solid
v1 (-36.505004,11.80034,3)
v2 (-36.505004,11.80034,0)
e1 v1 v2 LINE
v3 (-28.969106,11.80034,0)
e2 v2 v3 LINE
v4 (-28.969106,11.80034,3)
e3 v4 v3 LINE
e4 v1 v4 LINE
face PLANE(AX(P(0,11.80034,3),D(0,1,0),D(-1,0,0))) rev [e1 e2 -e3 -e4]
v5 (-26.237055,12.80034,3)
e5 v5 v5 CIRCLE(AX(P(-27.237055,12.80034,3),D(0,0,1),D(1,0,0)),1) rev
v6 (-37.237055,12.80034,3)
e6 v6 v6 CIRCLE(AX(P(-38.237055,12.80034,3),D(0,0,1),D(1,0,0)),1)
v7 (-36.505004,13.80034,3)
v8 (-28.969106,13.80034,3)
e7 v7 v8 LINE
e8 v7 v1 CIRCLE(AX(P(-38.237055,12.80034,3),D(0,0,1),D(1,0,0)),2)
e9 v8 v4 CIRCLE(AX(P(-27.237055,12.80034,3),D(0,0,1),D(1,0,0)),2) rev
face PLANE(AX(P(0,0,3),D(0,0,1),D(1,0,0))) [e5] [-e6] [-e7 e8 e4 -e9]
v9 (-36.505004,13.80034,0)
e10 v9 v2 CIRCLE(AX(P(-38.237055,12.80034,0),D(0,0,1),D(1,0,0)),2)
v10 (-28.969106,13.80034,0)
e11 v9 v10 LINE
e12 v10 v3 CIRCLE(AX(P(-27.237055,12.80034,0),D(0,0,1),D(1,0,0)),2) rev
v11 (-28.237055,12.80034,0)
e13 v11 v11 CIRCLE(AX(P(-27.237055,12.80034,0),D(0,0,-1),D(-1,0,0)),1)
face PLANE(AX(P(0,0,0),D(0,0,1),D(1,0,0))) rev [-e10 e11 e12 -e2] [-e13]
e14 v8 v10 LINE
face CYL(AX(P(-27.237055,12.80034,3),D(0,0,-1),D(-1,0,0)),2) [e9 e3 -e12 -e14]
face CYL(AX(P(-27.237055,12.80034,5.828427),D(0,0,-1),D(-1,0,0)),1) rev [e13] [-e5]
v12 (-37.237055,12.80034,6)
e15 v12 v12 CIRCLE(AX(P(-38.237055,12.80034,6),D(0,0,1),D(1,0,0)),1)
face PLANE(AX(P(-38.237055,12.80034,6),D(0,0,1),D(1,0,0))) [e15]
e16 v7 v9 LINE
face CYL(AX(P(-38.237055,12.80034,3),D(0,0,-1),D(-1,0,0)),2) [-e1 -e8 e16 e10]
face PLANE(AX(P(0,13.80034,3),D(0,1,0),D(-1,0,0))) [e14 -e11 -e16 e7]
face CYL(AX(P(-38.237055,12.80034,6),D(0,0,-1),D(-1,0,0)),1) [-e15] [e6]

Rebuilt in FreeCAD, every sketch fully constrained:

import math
import FreeCAD as App
import Part
import Sketcher
from FreeCAD import Vector

doc = App.newDocument("Part")
body = doc.addObject("PartDesign::Body", "Body")

sketch1 = body.newObject("Sketcher::SketchObject", "Sketch")
sketch1.AttachmentSupport = (doc.getObject("XY_Plane"), [""])
sketch1.MapMode = "FlatFace"
sketch1.addGeometry([
    Part.LineSegment(Vector(-29, 13.8, 0), Vector(-36.5, 13.8, 0)),
    Part.ArcOfCircle(Part.Circle(Vector(-38.2, 12.8, 0), Vector(0, 0, 1), 2), math.radians(30), math.radians(330)),
    Part.LineSegment(Vector(-36.5, 11.8, 0), Vector(-29, 11.8, 0)),
    Part.ArcOfCircle(Part.Circle(Vector(-27.2, 12.8, 0), Vector(0, 0, 1), 2), math.radians(-150), math.radians(150)),
], False)
sketch1.addConstraint([
    Sketcher.Constraint("Coincident", 0, 2, 1, 1),
    Sketcher.Constraint("Coincident", 1, 2, 2, 1),
    Sketcher.Constraint("Coincident", 2, 2, 3, 1),
    Sketcher.Constraint("Coincident", 3, 2, 0, 1),
    Sketcher.Constraint("Horizontal", 0),
    Sketcher.Constraint("Horizontal", 2),
    Sketcher.Constraint("Equal", 1, 3),
    Sketcher.Constraint("Horizontal", 1, 3, 3, 3),
    Sketcher.Constraint("Vertical", 0, 2, 1, 2),
    Sketcher.Constraint("Radius", 1, 2.0),
    Sketcher.Constraint("DistanceX", 1, 3, 3, 3, 11.0),
    Sketcher.Constraint("DistanceY", 1, 3, 0, 2, 1.0),
    Sketcher.Constraint("DistanceY", -1, 1, 1, 3, 12.80034),
    Sketcher.Constraint("DistanceX", 1, 3, -1, 1, 38.237055),
])
pad1 = body.newObject("PartDesign::Pad", "Pad")
pad1.Profile = sketch1
pad1.Length = 3

sketch2 = body.newObject("Sketcher::SketchObject", "Sketch001")
sketch2.AttachmentSupport = (doc.getObject("XY_Plane"), [""])
sketch2.MapMode = "FlatFace"
sketch2.AttachmentOffset = App.Placement(Vector(0, 0, 3), App.Rotation())
sketch2.addGeometry(Part.Circle(Vector(-38.2, 12.8, 0), Vector(0, 0, 1), 1), False)
sketch2.addConstraint([
    Sketcher.Constraint("Diameter", 0, 2.0),
    Sketcher.Constraint("DistanceY", -1, 1, 0, 3, 12.80034),
    Sketcher.Constraint("DistanceX", 0, 3, -1, 1, 38.237055),
])
pad2 = body.newObject("PartDesign::Pad", "Pad001")
pad2.Profile = sketch2
pad2.Length = 3

sketch3 = body.newObject("Sketcher::SketchObject", "Sketch002")
sketch3.AttachmentSupport = (doc.getObject("XY_Plane"), [""])
sketch3.MapMode = "FlatFace"
sketch3.addGeometry(Part.Circle(Vector(-27.2, 12.8, 0), Vector(0, 0, 1), 1), False)
sketch3.addConstraint([
    Sketcher.Constraint("Diameter", 0, 2.0),
    Sketcher.Constraint("DistanceY", -1, 1, 0, 3, 12.80034),
    Sketcher.Constraint("DistanceX", 0, 3, -1, 1, 27.237055),
])
pocket1 = body.newObject("PartDesign::Pocket", "Pocket")
pocket1.Profile = sketch3
pocket1.Length = 3
pocket1.Reversed = True

doc.recompute()
